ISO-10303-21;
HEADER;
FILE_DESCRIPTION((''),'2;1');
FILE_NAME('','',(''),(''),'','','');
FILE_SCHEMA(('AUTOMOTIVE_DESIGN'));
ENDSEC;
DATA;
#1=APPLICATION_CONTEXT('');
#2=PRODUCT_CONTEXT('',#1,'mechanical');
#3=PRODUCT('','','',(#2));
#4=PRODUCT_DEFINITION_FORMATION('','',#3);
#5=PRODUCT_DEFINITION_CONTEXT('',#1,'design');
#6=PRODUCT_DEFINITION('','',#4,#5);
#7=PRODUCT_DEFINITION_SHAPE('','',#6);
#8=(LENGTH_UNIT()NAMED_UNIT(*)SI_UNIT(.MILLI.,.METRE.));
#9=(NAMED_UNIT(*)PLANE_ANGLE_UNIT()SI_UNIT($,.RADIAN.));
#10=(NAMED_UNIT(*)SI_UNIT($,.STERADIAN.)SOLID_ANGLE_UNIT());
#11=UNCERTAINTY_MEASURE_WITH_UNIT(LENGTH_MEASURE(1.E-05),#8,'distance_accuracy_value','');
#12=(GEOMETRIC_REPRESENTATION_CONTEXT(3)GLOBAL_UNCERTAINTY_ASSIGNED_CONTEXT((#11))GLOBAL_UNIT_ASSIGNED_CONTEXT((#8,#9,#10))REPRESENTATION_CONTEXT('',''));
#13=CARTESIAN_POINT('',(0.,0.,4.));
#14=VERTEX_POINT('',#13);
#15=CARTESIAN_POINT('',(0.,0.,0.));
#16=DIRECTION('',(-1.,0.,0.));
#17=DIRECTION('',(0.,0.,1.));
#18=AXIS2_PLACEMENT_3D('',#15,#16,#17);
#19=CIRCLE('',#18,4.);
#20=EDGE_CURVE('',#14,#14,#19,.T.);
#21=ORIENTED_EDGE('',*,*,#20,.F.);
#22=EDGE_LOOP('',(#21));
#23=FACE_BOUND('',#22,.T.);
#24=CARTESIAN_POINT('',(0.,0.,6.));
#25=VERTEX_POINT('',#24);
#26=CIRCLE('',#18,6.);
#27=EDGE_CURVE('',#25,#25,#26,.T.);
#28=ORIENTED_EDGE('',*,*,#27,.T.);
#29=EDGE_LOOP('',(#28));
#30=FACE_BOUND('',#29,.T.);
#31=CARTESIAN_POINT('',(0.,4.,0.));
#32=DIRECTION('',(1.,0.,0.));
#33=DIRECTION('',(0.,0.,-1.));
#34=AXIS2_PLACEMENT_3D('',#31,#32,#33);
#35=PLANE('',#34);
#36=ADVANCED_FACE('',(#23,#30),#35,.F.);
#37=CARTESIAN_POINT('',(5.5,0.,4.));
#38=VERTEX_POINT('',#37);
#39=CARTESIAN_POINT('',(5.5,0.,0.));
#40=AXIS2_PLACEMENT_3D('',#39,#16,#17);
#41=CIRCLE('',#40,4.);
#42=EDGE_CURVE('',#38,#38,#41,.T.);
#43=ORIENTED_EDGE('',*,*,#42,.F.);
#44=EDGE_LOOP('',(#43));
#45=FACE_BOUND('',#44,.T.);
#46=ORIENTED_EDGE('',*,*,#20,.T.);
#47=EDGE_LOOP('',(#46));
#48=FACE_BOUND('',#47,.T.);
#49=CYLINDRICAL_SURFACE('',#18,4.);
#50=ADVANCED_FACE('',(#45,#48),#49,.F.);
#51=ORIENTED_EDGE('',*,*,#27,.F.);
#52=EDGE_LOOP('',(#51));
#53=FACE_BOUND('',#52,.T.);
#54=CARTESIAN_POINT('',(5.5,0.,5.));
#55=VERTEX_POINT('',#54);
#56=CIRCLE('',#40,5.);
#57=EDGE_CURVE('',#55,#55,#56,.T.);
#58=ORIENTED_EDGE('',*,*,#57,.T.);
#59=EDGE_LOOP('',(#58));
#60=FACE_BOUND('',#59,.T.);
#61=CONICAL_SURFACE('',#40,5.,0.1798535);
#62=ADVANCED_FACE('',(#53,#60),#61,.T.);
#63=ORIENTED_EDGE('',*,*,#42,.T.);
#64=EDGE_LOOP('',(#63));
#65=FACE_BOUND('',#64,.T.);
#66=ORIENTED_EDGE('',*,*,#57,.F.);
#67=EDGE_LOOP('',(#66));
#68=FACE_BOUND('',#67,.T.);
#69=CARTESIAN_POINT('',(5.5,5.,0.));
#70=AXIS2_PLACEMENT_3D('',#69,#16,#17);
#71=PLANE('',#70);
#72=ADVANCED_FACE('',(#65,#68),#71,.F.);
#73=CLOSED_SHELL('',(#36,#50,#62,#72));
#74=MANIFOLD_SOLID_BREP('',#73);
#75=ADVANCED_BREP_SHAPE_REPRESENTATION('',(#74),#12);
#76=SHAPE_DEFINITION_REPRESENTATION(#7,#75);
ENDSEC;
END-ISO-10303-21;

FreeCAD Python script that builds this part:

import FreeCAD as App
import Part
import Sketcher


def add_polygon(sketch, points):
    """Adds a closed chain of lines whose ends are joined by coincident constraints."""
    first, n = sketch.GeometryCount, len(points)
    for a, b in zip(points, points[1:] + points[:1]):
        sketch.addGeometry(Part.LineSegment(App.Vector(*a, 0), App.Vector(*b, 0)), False)
    for i in range(n):
        sketch.addConstraint(Sketcher.Constraint("Coincident", first + i, 2, first + (i + 1) % n, 1))

doc = App.newDocument("Part")
body = doc.addObject("PartDesign::Body", "Body")

# Sketch on XY plane
sketch1 = body.newObject("Sketcher::SketchObject", "Sketch")
sketch1.AttachmentSupport = (doc.getObject("XY_Plane"), [""])
sketch1.MapMode = "FlatFace"
add_polygon(sketch1, [(0, 6), (0, 4), (5.5, 4), (5.5, 5)])  # lines 0-3
sketch1.addConstraint(Sketcher.Constraint("Vertical", 0))
sketch1.addConstraint(Sketcher.Constraint("Horizontal", 1))
sketch1.addConstraint(Sketcher.Constraint("Vertical", 2))
sketch1.addConstraint(Sketcher.Constraint("PointOnObject", 0, 2, -2))
sketch1.addConstraint(Sketcher.Constraint("DistanceY", 0, 2, 0, 1, 2.0))
sketch1.addConstraint(Sketcher.Constraint("DistanceY", 2, 1, 2, 2, 1.0))
sketch1.addConstraint(Sketcher.Constraint("DistanceX", 1, 1, 1, 2, 5.5))
sketch1.addConstraint(Sketcher.Constraint("DistanceY", -1, 1, 0, 2, 4.0))
revolution = body.newObject("PartDesign::Revolution", "Revolution")
revolution.Profile = sketch1
revolution.ReferenceAxis = (sketch1, ["H_Axis"])
revolution.Angle = 360

doc.recompute()
